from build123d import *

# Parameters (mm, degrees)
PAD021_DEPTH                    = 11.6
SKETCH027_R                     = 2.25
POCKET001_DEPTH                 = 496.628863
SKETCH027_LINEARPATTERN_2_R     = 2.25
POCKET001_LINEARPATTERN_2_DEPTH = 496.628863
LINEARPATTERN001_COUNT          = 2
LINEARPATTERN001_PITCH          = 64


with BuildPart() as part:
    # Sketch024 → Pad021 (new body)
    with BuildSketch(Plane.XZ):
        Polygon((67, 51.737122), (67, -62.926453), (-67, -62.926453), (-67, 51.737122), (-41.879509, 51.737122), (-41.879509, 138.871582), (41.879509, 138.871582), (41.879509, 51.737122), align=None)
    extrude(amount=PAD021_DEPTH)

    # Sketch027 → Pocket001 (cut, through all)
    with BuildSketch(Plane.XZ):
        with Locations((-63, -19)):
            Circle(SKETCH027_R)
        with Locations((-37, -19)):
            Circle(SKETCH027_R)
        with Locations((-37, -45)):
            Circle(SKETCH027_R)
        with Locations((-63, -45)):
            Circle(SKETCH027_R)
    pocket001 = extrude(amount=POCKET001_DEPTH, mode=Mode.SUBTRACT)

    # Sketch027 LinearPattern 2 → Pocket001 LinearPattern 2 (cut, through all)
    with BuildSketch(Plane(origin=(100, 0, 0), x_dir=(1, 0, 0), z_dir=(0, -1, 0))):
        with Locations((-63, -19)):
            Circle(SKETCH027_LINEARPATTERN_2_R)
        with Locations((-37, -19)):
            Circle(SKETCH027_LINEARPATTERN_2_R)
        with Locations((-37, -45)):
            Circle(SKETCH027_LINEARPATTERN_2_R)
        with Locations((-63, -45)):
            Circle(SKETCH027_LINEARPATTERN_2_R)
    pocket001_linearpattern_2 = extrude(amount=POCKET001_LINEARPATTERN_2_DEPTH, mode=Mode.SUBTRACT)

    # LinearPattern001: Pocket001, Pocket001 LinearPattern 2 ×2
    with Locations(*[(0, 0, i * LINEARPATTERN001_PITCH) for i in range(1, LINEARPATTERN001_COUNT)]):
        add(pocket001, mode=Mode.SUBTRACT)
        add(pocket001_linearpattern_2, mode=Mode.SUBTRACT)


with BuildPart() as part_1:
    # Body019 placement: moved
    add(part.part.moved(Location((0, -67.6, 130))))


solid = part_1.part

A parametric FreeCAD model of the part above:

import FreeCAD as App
import Part
import Sketcher

V = App.Vector

doc = App.newDocument("Part")
body = doc.addObject("PartDesign::Body", "Body")

sketch1 = body.newObject("Sketcher::SketchObject", "Sketch")
sketch1.AttachmentSupport = (doc.getObject("XZ_Plane"), [""])
sketch1.MapMode = "FlatFace"
sketch1.addGeometry([
    Part.LineSegment(V(67, -62.926453, 0), V(67, 51.737122, 0)),
    Part.LineSegment(V(67, 51.737122, 0), V(41.879509, 51.737122, 0)),
    Part.LineSegment(V(41.879509, 51.737122, 0), V(41.879509, 138.871582, 0)),
    Part.LineSegment(V(41.879509, 138.871582, 0), V(-41.879509, 138.871582, 0)),
    Part.LineSegment(V(-41.879509, 138.871582, 0), V(-41.879509, 51.737122, 0)),
    Part.LineSegment(V(-41.879509, 51.737122, 0), V(-67, 51.737122, 0)),
    Part.LineSegment(V(-67, 51.737122, 0), V(-67, -62.926453, 0)),
    Part.LineSegment(V(-67, -62.926453, 0), V(67, -62.926453, 0)),
], False)
sketch1.addConstraint([
    Sketcher.Constraint("Coincident", 0, 2, 1, 1),
    Sketcher.Constraint("Coincident", 1, 2, 2, 1),
    Sketcher.Constraint("Coincident", 2, 2, 3, 1),
    Sketcher.Constraint("Coincident", 3, 2, 4, 1),
    Sketcher.Constraint("Coincident", 4, 2, 5, 1),
    Sketcher.Constraint("Coincident", 5, 2, 6, 1),
    Sketcher.Constraint("Coincident", 6, 2, 7, 1),
    Sketcher.Constraint("Coincident", 7, 2, 0, 1),
    Sketcher.Constraint("Vertical", 0),
    Sketcher.Constraint("Horizontal", 1),
    Sketcher.Constraint("Vertical", 2),
    Sketcher.Constraint("Horizontal", 3),
    Sketcher.Constraint("Vertical", 4),
    Sketcher.Constraint("Horizontal", 5),
    Sketcher.Constraint("Vertical", 6),
    Sketcher.Constraint("Horizontal", 7),
    Sketcher.Constraint("Symmetric", 1, 2, 4, 2, -2),
    Sketcher.Constraint("Equal", 1, 5),
    Sketcher.Constraint("DistanceX", 7, 1, 7, 2, 134.0),
    Sketcher.Constraint("DistanceX", 1, 2, 1, 1, 25.120491),
    Sketcher.Constraint("DistanceY", 2, 1, 2, 2, 87.13446),
    Sketcher.Constraint("DistanceY", 0, 1, 0, 2, 114.663575),
    Sketcher.Constraint("DistanceY", -1, 1, 2, 2, 138.871582),
])
pad1 = body.newObject("PartDesign::Pad", "Pad")
pad1.Profile = sketch1
pad1.Length = 11.6

sketch2 = body.newObject("Sketcher::SketchObject", "Sketch001")
sketch2.AttachmentSupport = (doc.getObject("XZ_Plane"), [""])
sketch2.MapMode = "FlatFace"
sketch2.addGeometry([
    Part.Circle(V(-63, -19, 0), V(0, 0, 1), 2.25),
    Part.Circle(V(-37, -19, 0), V(0, 0, 1), 2.25),
    Part.Circle(V(-37, -45, 0), V(0, 0, 1), 2.25),
    Part.Circle(V(-63, -45, 0), V(0, 0, 1), 2.25),
], False)
sketch2.addConstraint([
    Sketcher.Constraint("Equal", 0, 1),
    Sketcher.Constraint("Equal", 1, 2),
    Sketcher.Constraint("Equal", 2, 3),
    Sketcher.Constraint("Horizontal", 0, 3, 1, 3),
    Sketcher.Constraint("Horizontal", 2, 3, 3, 3),
    Sketcher.Constraint("Vertical", 1, 3, 2, 3),
    Sketcher.Constraint("Vertical", 0, 3, 3, 3),
    Sketcher.Constraint("Diameter", 0, 4.5),
    Sketcher.Constraint("DistanceX", 0, 3, -1, 1, 63.0),
    Sketcher.Constraint("DistanceY", 0, 3, -1, 1, 19.0),
    Sketcher.Constraint("DistanceX", 1, 3, -1, 1, 37.0),
    Sketcher.Constraint("DistanceY", 2, 3, -1, 1, 45.0),
])
pocket1 = body.newObject("PartDesign::Pocket", "Pocket")
pocket1.Profile = sketch2
pocket1.Type = "ThroughAll"
pocket1.Reversed = True

sketch3 = body.newObject("Sketcher::SketchObject", "Sketch002")
sketch3.AttachmentSupport = (doc.getObject("XZ_Plane"), [""])
sketch3.MapMode = "FlatFace"
sketch3.addGeometry([
    Part.Circle(V(37, -19, 0), V(0, 0, 1), 2.25),
    Part.Circle(V(63, -19, 0), V(0, 0, 1), 2.25),
    Part.Circle(V(63, -45, 0), V(0, 0, 1), 2.25),
    Part.Circle(V(37, -45, 0), V(0, 0, 1), 2.25),
], False)
sketch3.addConstraint([
    Sketcher.Constraint("Equal", 0, 1),
    Sketcher.Constraint("Equal", 1, 2),
    Sketcher.Constraint("Equal", 2, 3),
    Sketcher.Constraint("Horizontal", 0, 3, 1, 3),
    Sketcher.Constraint("Horizontal", 2, 3, 3, 3),
    Sketcher.Constraint("Vertical", 1, 3, 2, 3),
    Sketcher.Constraint("Vertical", 0, 3, 3, 3),
    Sketcher.Constraint("Diameter", 0, 4.5),
    Sketcher.Constraint("DistanceX", -1, 1, 0, 3, 37.0),
    Sketcher.Constraint("DistanceY", 0, 3, -1, 1, 19.0),
    Sketcher.Constraint("DistanceX", -1, 1, 1, 3, 63.0),
    Sketcher.Constraint("DistanceY", 2, 3, -1, 1, 45.0),
])
pocket2 = body.newObject("PartDesign::Pocket", "Pocket001")
pocket2.Profile = sketch3
pocket2.Type = "ThroughAll"
pocket2.Reversed = True
doc.recompute()

linearpattern = body.newObject("PartDesign::LinearPattern", "LinearPattern")
linearpattern.Originals = [pocket1, pocket2]
linearpattern.Direction = (doc.getObject("Z_Axis"), [""])
linearpattern.Mode = "offset"
linearpattern.Offset = 64
linearpattern.Occurrences = 2
body.Tip = linearpattern
body2 = doc.addObject("PartDesign::Body", "Body001")
doc.recompute()

body.Placement = App.Placement(V(0, -67.6, 130), App.Rotation(V(0, 0, 1), 0))
boolean = body2.newObject("PartDesign::Boolean", "Boolean")
boolean.Type = "Fuse"
boolean.addObjects([body])

doc.recompute()
